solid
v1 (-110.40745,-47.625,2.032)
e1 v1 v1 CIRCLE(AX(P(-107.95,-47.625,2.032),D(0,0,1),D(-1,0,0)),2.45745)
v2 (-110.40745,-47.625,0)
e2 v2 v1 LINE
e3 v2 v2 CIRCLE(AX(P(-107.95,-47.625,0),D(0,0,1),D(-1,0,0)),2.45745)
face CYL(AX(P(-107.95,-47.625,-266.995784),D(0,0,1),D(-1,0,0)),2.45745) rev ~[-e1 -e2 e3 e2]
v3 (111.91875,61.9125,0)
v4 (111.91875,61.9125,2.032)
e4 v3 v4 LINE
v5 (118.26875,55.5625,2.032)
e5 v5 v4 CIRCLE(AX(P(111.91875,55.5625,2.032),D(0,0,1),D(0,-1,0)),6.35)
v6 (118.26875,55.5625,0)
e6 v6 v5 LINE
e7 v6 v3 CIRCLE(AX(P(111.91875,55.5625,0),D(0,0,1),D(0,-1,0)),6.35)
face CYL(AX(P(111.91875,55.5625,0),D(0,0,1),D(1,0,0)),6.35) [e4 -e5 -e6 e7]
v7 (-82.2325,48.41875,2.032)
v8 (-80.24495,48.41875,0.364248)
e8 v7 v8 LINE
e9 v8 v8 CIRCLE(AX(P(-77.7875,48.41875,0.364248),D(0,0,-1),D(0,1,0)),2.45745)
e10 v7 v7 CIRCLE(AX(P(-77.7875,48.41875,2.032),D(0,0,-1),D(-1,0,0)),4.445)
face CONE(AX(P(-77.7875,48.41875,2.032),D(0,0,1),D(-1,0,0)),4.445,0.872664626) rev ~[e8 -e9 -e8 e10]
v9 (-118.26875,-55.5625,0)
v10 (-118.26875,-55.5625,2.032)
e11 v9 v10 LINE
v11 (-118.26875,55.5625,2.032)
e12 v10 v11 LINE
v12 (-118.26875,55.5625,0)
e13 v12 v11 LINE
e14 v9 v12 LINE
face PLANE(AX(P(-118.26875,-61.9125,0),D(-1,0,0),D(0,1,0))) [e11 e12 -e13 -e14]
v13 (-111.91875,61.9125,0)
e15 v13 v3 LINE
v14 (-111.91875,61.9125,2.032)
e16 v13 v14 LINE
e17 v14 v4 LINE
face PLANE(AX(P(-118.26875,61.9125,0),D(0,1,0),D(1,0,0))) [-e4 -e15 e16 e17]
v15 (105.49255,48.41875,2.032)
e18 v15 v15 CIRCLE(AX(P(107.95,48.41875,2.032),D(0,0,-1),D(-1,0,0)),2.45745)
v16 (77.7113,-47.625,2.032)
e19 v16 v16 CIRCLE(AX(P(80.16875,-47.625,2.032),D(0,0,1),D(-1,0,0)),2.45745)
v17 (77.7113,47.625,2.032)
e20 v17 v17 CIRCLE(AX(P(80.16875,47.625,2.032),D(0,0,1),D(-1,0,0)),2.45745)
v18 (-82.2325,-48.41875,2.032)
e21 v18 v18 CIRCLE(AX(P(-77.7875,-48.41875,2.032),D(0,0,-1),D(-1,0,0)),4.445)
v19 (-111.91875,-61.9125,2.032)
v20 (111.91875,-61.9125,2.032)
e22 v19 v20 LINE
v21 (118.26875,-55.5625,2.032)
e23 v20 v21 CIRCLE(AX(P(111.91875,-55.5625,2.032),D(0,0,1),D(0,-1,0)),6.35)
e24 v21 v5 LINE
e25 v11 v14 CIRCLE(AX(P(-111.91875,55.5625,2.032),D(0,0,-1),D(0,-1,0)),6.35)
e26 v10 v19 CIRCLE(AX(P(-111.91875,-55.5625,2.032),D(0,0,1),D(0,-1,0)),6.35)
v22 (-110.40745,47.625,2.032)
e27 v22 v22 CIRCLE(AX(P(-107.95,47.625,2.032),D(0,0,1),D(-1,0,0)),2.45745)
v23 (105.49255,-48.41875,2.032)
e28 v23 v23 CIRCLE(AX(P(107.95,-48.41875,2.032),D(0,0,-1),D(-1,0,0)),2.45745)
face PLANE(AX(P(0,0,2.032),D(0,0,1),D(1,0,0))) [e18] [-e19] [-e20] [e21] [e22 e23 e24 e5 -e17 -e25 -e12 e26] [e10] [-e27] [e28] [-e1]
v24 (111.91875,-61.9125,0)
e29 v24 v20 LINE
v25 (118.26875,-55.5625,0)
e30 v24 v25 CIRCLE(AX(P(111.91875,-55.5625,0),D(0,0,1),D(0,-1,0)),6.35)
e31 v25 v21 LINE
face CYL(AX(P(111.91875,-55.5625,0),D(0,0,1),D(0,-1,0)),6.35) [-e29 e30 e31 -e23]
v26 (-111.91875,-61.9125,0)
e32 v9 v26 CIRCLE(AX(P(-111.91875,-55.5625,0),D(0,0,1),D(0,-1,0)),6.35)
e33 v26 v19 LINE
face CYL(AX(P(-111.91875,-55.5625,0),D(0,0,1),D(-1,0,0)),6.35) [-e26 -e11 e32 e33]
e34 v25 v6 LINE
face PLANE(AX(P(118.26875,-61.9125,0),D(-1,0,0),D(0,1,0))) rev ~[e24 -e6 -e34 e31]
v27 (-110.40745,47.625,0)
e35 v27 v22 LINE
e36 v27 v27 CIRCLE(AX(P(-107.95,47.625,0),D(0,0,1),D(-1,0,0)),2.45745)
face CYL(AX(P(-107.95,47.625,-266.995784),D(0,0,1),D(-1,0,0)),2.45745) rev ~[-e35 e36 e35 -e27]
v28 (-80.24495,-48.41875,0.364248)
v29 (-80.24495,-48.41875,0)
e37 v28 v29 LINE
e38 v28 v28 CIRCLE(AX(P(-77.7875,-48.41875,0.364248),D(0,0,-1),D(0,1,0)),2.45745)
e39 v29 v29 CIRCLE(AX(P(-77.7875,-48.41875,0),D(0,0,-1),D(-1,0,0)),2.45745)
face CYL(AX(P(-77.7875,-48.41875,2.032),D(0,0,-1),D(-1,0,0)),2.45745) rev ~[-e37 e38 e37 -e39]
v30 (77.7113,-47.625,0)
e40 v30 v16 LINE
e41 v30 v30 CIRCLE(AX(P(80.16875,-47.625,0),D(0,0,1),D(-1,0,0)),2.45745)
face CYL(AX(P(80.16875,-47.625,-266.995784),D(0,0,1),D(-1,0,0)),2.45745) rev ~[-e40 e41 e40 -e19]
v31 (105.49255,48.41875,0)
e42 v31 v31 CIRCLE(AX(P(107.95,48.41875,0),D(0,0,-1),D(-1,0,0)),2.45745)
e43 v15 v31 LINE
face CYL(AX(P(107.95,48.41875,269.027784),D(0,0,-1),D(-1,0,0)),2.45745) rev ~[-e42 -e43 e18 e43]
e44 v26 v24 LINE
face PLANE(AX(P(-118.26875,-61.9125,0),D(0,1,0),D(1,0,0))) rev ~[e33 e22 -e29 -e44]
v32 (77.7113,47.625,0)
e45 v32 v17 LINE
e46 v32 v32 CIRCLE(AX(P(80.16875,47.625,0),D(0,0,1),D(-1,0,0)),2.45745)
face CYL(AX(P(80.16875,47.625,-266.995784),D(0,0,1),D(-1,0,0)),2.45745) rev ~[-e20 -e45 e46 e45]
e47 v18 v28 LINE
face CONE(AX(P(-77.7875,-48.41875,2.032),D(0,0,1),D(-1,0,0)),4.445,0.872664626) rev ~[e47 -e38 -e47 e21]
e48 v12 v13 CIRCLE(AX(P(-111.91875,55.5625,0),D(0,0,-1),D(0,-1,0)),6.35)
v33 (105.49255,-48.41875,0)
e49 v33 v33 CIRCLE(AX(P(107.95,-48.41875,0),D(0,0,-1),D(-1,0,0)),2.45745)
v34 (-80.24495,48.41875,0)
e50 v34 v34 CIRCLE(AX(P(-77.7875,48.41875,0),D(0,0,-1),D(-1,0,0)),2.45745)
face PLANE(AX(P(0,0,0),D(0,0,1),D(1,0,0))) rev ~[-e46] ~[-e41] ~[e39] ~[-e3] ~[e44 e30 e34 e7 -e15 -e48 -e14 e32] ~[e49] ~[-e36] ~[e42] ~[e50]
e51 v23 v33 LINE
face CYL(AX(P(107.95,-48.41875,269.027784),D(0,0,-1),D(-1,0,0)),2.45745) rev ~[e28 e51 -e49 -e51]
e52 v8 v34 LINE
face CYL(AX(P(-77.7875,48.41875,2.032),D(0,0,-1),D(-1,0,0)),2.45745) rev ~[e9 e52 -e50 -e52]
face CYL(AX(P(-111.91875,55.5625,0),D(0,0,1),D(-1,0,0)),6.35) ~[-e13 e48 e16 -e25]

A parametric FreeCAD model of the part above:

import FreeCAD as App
import Part
import Sketcher
Q = App.Units.Quantity


def edges_at(feature, points):
    """Names of the edges that pass closest to the given points."""
    edges = feature.Shape.Edges
    near = lambda p: min(range(len(edges)), key=lambda i: edges[i].distToShape(Part.Vertex(*p))[0])
    return sorted({f"Edge{near(p) + 1}" for p in points})


def add_polygon(sketch, points):
    """Adds a closed chain of lines whose ends are joined by coincident constraints."""
    first, n = sketch.GeometryCount, len(points)
    for a, b in zip(points, points[1:] + points[:1]):
        sketch.addGeometry(Part.LineSegment(App.Vector(*a, 0), App.Vector(*b, 0)), False)
    for i in range(n):
        sketch.addConstraint(Sketcher.Constraint("Coincident", first + i, 2, first + (i + 1) % n, 1))

doc = App.newDocument("Part")
body = doc.addObject("PartDesign::Body", "Body")

sketch1 = body.newObject("Sketcher::SketchObject", "Sketch")
sketch1.AttachmentSupport = (doc.getObject("XY_Plane"), [""])
sketch1.MapMode = "FlatFace"
add_polygon(sketch1, [(-118, 62), (-118, -62), (118, -62), (118, 62)])
sketch1.addConstraint(Sketcher.Constraint("Vertical", 0))
sketch1.addConstraint(Sketcher.Constraint("Horizontal", 1))
sketch1.addConstraint(Sketcher.Constraint("Vertical", 2))
sketch1.addConstraint(Sketcher.Constraint("Horizontal", 3))
sketch1.addConstraint(Sketcher.Constraint("Symmetric", 0, 2, 2, 2, -1, 1))
sketch1.addConstraint(Sketcher.Constraint("DistanceX", 1, 1, 1, 2, Q("9.3125 in")))
sketch1.addConstraint(Sketcher.Constraint("DistanceY", 0, 2, 0, 1, Q("4.875 in")))
pad1 = body.newObject("PartDesign::Pad", "Pad")
pad1.Profile = sketch1
pad1.Length = Q("0.08 in")
doc.recompute()

fillet = body.newObject("PartDesign::Fillet", "Fillet")
fillet.Base = (pad1, edges_at(pad1, [
    (118.269, -61.913, 1.016),
    (118.269, 61.913, 1.016),
    (-118.269, -61.913, 1.016),
    (-118.269, 61.913, 1.016),
]))
fillet.Radius = Q("0.25 in")

sketch2 = body.newObject("Sketcher::SketchObject", "Sketch001")
sketch2.AttachmentSupport = (doc.getObject("XY_Plane"), [""])
sketch2.MapMode = "FlatFace"
sketch2.addGeometry(Part.Circle(App.Vector(-108, 47.6, 0), App.Vector(0, 0, 1), 2.5), False)
sketch2.addGeometry(Part.Circle(App.Vector(-108, -47.6, 0), App.Vector(0, 0, 1), 2.5), False)
sketch2.addGeometry(Part.Circle(App.Vector(80.2, -47.6, 0), App.Vector(0, 0, 1), 2.5), False)
sketch2.addGeometry(Part.Circle(App.Vector(80.2, 47.6, 0), App.Vector(0, 0, 1), 2.5), False)
sketch2.addConstraint(Sketcher.Constraint("Equal", 0, 1))
sketch2.addConstraint(Sketcher.Constraint("Equal", 1, 2))
sketch2.addConstraint(Sketcher.Constraint("Equal", 2, 3))
sketch2.addConstraint(Sketcher.Constraint("Symmetric", 0, 3, 1, 3, -1))
sketch2.addConstraint(Sketcher.Constraint("Symmetric", 2, 3, 3, 3, -1))
sketch2.addConstraint(Sketcher.Constraint("Horizontal", 1, 3, 2, 3))
sketch2.addConstraint(Sketcher.Constraint("Diameter", 0, Q("0.1935 in")))
sketch2.addConstraint(Sketcher.Constraint("DistanceX", 0, 3, -1, 1, Q("4.25 in")))
sketch2.addConstraint(Sketcher.Constraint("DistanceY", 1, 3, 0, 3, Q("3.75 in")))
sketch2.addConstraint(Sketcher.Constraint("DistanceX", -1, 1, 2, 3, Q("3.15625 in")))
doc.recompute()
hole = body.newObject("PartDesign::Hole", "Hole")
hole.Profile = sketch2
hole.ThreadType = "None"
hole.Diameter = Q("0.1935 in")
hole.DepthType = "ThroughAll"
hole.Reversed = True

sketch3 = body.newObject("Sketcher::SketchObject", "Sketch002")
sketch3.AttachmentSupport = (doc.getObject("XY_Plane"), [""])
sketch3.MapMode = "FlatFace"
sketch3.AttachmentOffset = App.Placement(App.Vector(0, 0, 0.08 * 25.4), App.Rotation())
sketch3.addGeometry(Part.Circle(App.Vector(-77.8, 48.4, 0), App.Vector(0, 0, 1), 2.5), False)
sketch3.addGeometry(Part.Circle(App.Vector(-77.8, -48.4, 0), App.Vector(0, 0, 1), 2.5), False)
sketch3.addConstraint(Sketcher.Constraint("Equal", 0, 1))
sketch3.addConstraint(Sketcher.Constraint("Symmetric", 0, 3, 1, 3, -1))
sketch3.addConstraint(Sketcher.Constraint("Diameter", 0, Q("0.1935 in")))
sketch3.addConstraint(Sketcher.Constraint("DistanceX", 0, 3, -1, 1, Q("3.0625 in")))
sketch3.addConstraint(Sketcher.Constraint("DistanceY", -1, 1, 0, 3, Q("1.90625 in")))
doc.recompute()
hole2 = body.newObject("PartDesign::Hole", "Hole001")
hole2.Profile = sketch3
hole2.ThreadType = "None"
hole2.Diameter = Q("0.1935 in")
hole2.DepthType = "ThroughAll"
hole2.HoleCutType = "Countersink"
hole2.HoleCutDiameter = Q("0.35 in")
hole2.HoleCutCountersinkAngle = 100

sketch4 = body.newObject("Sketcher::SketchObject", "Sketch003")
sketch4.AttachmentSupport = (doc.getObject("XY_Plane"), [""])
sketch4.MapMode = "FlatFace"
sketch4.AttachmentOffset = App.Placement(App.Vector(0, 0, 0.08 * 25.4), App.Rotation())
sketch4.addGeometry(Part.Circle(App.Vector(108, 48.4, 0), App.Vector(0, 0, 1), 2.5), False)
sketch4.addGeometry(Part.Circle(App.Vector(108, -48.4, 0), App.Vector(0, 0, 1), 2.5), False)
sketch4.addConstraint(Sketcher.Constraint("Equal", 0, 1))
sketch4.addConstraint(Sketcher.Constraint("Symmetric", 0, 3, 1, 3, -1))
sketch4.addConstraint(Sketcher.Constraint("Diameter", 0, Q("0.1935 in")))
sketch4.addConstraint(Sketcher.Constraint("DistanceX", -1, 1, 0, 3, Q("4.25 in")))
sketch4.addConstraint(Sketcher.Constraint("DistanceY", -1, 1, 0, 3, Q("1.90625 in")))
doc.recompute()
hole3 = body.newObject("PartDesign::Hole", "Hole002")
hole3.Profile = sketch4
hole3.ThreadType = "None"
hole3.Diameter = Q("0.1935 in")
hole3.DepthType = "ThroughAll"

doc.recompute()
